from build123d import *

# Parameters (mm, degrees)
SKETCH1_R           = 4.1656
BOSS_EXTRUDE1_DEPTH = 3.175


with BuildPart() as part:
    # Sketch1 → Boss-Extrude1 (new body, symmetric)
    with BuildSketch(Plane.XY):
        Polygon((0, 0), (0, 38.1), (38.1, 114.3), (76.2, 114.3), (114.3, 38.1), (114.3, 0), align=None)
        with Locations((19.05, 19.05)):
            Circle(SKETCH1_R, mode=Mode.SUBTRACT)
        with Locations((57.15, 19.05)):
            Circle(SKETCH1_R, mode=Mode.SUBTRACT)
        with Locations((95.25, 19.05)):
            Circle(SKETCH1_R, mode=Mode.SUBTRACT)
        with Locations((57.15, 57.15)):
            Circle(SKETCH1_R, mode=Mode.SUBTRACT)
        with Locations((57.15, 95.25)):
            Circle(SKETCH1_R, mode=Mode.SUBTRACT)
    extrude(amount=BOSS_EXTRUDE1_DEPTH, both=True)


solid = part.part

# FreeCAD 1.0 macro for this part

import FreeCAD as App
import Part
import Sketcher
from FreeCAD import Vector
Q = App.Units.Quantity


def add_polygon(sketch, points):
    """Adds a closed chain of lines whose ends are joined by coincident constraints."""
    first, n = sketch.GeometryCount, len(points)
    for a, b in zip(points, points[1:] + points[:1]):
        sketch.addGeometry(Part.LineSegment(App.Vector(*a, 0), App.Vector(*b, 0)), False)
    for i in range(n):
        sketch.addConstraint(Sketcher.Constraint("Coincident", first + i, 2, first + (i + 1) % n, 1))

doc = App.newDocument("Part")
params = doc.addObject("Spreadsheet::Sheet", "Params")
for row, (alias, value) in enumerate([
    ("sketch1_diameter", "0.328 in"),
    ("sketch1_width", "4.5 in"),
    ("sketch1_width2", "1.5 in"),
    ("pad1_length", "0.25 in"),
], start=1):
    params.set(f"A{row}", alias)
    params.set(f"B{row}", "=" + value)
    params.setAlias(f"B{row}", alias)

body = doc.addObject("PartDesign::Body", "Body")

# Sketch on XY plane
sketch1 = body.newObject("Sketcher::SketchObject", "Sketch")
sketch1.AttachmentSupport = (doc.getObject("XY_Plane"), [""])
sketch1.MapMode = "FlatFace"
add_polygon(sketch1, [(0, 38.1), (0, 0), (114.3, 0), (114.3, 38.1), (76.2, 114.3), (38.1, 114.3)])  # lines 0-5
sketch1.addGeometry(Part.Circle(Vector(95.25, 19.05, 0), Vector(0, 0, 1), 4.1656), False)  # 6
sketch1.addGeometry(Part.Circle(Vector(57.15, 19.05, 0), Vector(0, 0, 1), 4.1656), False)  # 7
sketch1.addGeometry(Part.Circle(Vector(19.05, 19.05, 0), Vector(0, 0, 1), 4.1656), False)  # 8
sketch1.addGeometry(Part.Circle(Vector(57.15, 57.15, 0), Vector(0, 0, 1), 4.1656), False)  # 9
sketch1.addGeometry(Part.Circle(Vector(57.15, 95.25, 0), Vector(0, 0, 1), 4.1656), False)  # 10
sketch1.addConstraint(Sketcher.Constraint("Vertical", 0))
sketch1.addConstraint(Sketcher.Constraint("Horizontal", 1))
sketch1.addConstraint(Sketcher.Constraint("Vertical", 2))
sketch1.addConstraint(Sketcher.Constraint("Horizontal", 4))
sketch1.addConstraint(Sketcher.Constraint("Coincident", 0, 2, -1, 1))
sketch1.addConstraint(Sketcher.Constraint("Equal", 6, 7))
sketch1.addConstraint(Sketcher.Constraint("Equal", 7, 8))
sketch1.addConstraint(Sketcher.Constraint("Equal", 8, 9))
sketch1.addConstraint(Sketcher.Constraint("Equal", 9, 10))
sketch1.addConstraint(Sketcher.Constraint("Horizontal", 6, 3, 7, 3))
sketch1.addConstraint(Sketcher.Constraint("Horizontal", 7, 3, 8, 3))
sketch1.addConstraint(Sketcher.Constraint("Horizontal", 2, 2, 5, 2))
sketch1.addConstraint(Sketcher.Constraint("Vertical", 7, 3, 9, 3))
sketch1.addConstraint(Sketcher.Constraint("Vertical", 9, 3, 10, 3))
sketch1.addConstraint(Sketcher.Constraint("Equal", 4, 0))
sketch1.addConstraint(Sketcher.Constraint("Equal", 3, 5))
sketch1.addConstraint(Sketcher.Constraint("Diameter", 6, Q("0.328 in")))
sketch1.addConstraint(Sketcher.Constraint("DistanceX", 1, 1, 1, 2, Q("4.5 in")))
sketch1.addConstraint(Sketcher.Constraint("DistanceX", 4, 2, 4, 1, Q("1.5 in")))
sketch1.addConstraint(Sketcher.Constraint("DistanceX", 8, 3, 6, 3, Q("3 in")))
sketch1.addConstraint(Sketcher.Constraint("DistanceY", 7, 3, 10, 3, Q("3 in")))
sketch1.addConstraint(Sketcher.Constraint("DistanceY", 2, 2, 3, 2, Q("3 in")))
sketch1.addConstraint(Sketcher.Constraint("DistanceX", 7, 3, 6, 3, Q("1.5 in")))
sketch1.addConstraint(Sketcher.Constraint("DistanceY", 7, 3, 9, 3, Q("1.5 in")))
sketch1.addConstraint(Sketcher.Constraint("DistanceX", -1, 1, 6, 3, Q("3.75 in")))
sketch1.addConstraint(Sketcher.Constraint("DistanceY", -1, 1, 6, 3, Q("0.75 in")))
sketch1.setExpression("Constraints[22]", "Params.sketch1_diameter")
sketch1.setExpression("Constraints[23]", "Params.sketch1_width")
sketch1.setExpression("Constraints[24]", "Params.sketch1_width2")
pad1 = body.newObject("PartDesign::Pad", "Pad")
pad1.Profile = sketch1
pad1.setExpression("Length", "Params.pad1_length")
pad1.Midplane = True

doc.recompute()
